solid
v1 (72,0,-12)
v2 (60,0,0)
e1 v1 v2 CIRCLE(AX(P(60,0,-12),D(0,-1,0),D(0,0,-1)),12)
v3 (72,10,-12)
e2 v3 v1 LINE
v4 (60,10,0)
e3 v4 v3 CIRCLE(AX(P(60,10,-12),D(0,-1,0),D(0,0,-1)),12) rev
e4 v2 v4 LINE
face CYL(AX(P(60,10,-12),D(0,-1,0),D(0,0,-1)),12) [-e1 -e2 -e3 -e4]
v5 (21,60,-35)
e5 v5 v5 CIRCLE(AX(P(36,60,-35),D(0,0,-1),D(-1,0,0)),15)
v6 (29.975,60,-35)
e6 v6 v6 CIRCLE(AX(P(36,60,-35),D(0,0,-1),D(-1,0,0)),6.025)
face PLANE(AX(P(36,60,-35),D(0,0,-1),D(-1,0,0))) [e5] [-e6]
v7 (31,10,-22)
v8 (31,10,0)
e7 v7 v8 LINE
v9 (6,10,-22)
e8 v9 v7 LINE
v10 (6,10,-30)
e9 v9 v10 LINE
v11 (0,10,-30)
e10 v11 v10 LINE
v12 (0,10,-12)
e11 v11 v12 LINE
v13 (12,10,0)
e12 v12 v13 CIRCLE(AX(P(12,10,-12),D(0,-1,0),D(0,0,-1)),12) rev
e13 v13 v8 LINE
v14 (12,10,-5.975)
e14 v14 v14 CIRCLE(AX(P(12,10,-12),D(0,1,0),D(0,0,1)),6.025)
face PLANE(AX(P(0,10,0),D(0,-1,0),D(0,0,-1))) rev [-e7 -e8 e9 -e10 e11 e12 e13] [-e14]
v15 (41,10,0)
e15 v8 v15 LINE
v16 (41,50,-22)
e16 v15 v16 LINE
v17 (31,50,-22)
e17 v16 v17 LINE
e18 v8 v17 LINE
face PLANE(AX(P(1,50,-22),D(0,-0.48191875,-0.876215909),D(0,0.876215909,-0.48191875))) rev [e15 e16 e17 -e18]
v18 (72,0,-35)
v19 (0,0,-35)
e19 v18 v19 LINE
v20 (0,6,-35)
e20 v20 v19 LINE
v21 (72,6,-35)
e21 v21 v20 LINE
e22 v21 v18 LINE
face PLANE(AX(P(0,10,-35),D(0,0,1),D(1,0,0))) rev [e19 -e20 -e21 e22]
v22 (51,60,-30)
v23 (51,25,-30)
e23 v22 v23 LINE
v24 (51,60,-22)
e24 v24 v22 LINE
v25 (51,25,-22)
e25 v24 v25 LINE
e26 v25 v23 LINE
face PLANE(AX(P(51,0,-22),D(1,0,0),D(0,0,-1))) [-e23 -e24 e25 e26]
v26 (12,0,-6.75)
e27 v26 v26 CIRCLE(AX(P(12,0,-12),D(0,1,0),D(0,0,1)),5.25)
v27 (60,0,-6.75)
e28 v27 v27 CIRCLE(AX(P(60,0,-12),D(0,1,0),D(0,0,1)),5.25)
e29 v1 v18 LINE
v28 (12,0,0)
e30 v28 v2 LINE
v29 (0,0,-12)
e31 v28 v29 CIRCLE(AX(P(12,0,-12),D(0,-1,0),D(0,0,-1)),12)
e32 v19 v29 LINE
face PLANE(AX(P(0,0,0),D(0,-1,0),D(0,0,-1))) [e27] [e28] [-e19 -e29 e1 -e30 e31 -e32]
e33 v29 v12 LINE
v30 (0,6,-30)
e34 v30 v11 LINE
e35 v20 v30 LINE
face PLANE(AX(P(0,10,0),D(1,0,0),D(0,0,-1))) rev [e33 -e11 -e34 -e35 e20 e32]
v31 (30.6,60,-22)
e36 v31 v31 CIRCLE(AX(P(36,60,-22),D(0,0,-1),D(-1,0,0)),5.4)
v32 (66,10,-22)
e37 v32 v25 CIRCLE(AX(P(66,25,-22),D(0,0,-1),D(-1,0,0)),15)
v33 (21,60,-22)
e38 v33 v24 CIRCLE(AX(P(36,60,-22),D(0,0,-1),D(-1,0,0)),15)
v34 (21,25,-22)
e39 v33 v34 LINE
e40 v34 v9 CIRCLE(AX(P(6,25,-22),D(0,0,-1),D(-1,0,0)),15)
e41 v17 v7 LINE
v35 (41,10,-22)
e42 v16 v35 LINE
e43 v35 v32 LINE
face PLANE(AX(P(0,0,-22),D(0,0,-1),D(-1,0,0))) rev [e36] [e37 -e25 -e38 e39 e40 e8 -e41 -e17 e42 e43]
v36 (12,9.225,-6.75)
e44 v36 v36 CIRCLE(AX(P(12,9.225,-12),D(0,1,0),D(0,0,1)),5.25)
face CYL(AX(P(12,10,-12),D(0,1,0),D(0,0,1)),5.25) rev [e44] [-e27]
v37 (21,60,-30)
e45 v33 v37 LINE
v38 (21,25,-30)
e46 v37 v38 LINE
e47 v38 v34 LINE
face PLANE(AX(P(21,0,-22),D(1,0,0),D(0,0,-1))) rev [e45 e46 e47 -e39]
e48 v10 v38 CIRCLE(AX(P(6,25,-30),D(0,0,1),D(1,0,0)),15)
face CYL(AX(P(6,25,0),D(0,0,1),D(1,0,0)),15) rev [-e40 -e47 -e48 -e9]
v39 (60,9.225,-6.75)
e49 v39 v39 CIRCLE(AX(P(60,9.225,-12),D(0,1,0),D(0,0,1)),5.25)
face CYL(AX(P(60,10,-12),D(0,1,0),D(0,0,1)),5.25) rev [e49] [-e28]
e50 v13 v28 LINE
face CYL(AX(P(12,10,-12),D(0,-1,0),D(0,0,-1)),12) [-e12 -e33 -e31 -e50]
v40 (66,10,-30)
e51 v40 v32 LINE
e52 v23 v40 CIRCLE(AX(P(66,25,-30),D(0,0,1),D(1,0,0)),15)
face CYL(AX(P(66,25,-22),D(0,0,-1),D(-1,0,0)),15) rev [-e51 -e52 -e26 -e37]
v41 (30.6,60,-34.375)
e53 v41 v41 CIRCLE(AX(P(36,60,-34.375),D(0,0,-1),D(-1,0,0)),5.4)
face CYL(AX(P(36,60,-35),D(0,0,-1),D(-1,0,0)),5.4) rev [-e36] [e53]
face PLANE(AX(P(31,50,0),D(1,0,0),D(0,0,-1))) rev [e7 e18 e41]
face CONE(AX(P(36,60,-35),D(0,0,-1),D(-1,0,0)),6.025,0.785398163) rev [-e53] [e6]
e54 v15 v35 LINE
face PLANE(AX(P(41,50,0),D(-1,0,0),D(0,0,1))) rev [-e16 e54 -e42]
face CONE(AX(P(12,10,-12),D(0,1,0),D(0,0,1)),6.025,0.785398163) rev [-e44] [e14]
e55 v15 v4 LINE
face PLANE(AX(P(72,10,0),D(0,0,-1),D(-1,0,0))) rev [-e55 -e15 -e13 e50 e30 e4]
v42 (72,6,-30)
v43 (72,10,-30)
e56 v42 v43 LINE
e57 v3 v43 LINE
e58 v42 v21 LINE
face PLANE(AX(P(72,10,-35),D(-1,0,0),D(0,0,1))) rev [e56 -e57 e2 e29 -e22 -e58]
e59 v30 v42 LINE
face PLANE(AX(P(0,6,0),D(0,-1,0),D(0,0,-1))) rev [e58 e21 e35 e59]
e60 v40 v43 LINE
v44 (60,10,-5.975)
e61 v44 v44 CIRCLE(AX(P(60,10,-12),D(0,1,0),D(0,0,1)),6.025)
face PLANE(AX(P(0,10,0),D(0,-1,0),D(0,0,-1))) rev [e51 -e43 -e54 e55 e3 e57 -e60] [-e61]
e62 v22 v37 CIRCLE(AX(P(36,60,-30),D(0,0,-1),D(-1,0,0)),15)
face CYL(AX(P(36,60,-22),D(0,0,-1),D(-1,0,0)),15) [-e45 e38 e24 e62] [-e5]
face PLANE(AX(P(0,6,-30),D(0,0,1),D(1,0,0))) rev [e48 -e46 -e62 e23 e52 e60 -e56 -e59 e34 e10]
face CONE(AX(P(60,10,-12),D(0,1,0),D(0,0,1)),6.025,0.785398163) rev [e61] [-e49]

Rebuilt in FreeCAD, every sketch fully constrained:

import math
import FreeCAD as App
import Part
import Sketcher
Q = App.Units.Quantity


def edges_at(feature, points):
    """Names of the edges that pass closest to the given points."""
    edges = feature.Shape.Edges
    near = lambda p: min(range(len(edges)), key=lambda i: edges[i].distToShape(Part.Vertex(*p))[0])
    return sorted({f"Edge{near(p) + 1}" for p in points})


def add_polygon(sketch, points):
    """Adds a closed chain of lines whose ends are joined by coincident constraints."""
    first, n = sketch.GeometryCount, len(points)
    for a, b in zip(points, points[1:] + points[:1]):
        sketch.addGeometry(Part.LineSegment(App.Vector(*a, 0), App.Vector(*b, 0)), False)
    for i in range(n):
        sketch.addConstraint(Sketcher.Constraint("Coincident", first + i, 2, first + (i + 1) % n, 1))

doc = App.newDocument("Part")
body = doc.addObject("PartDesign::Body", "Body")

sketch1 = body.newObject("Sketcher::SketchObject", "Sketch")
sketch1.AttachmentSupport = (doc.getObject("XZ_Plane"), [""])
sketch1.MapMode = "FlatFace"
add_polygon(sketch1, [(0, -35), (0, 0), (72, 0), (72, -35)])
sketch1.addConstraint([
    Sketcher.Constraint("Vertical", 0),
    Sketcher.Constraint("Horizontal", 1),
    Sketcher.Constraint("Vertical", 2),
    Sketcher.Constraint("Horizontal", 3),
    Sketcher.Constraint("Coincident", 0, 2, -1, 1),
    Sketcher.Constraint("DistanceX", 1, 1, 1, 2, Q("72 mm")),
    Sketcher.Constraint("DistanceY", 0, 1, 0, 2, Q("35 mm")),
])
pad1 = body.newObject("PartDesign::Pad", "Pad")
pad1.Profile = sketch1
pad1.Length = 10
pad1.Reversed = True

sketch2 = body.newObject("Sketcher::SketchObject", "Sketch001")
sketch2.AttachmentSupport = (doc.getObject("XZ_Plane"), [""])
sketch2.MapMode = "FlatFace"
sketch2.AttachmentOffset = App.Placement(App.Vector(0, 0, -10), App.Rotation())
add_polygon(sketch2, [(0, -35), (0, -30), (72, -30), (72, -35)])
sketch2.addConstraint([
    Sketcher.Constraint("Vertical", 0),
    Sketcher.Constraint("Horizontal", 1),
    Sketcher.Constraint("Vertical", 2),
    Sketcher.Constraint("Horizontal", 3),
    Sketcher.Constraint("PointOnObject", 0, 2, -2),
    Sketcher.Constraint("DistanceX", 1, 1, 1, 2, Q("72 mm")),
    Sketcher.Constraint("DistanceY", 0, 1, 0, 2, Q("5 mm")),
    Sketcher.Constraint("DistanceY", 0, 2, -1, 1, Q("30 mm")),
])
pocket1 = body.newObject("PartDesign::Pocket", "Pocket")
pocket1.Profile = sketch2
pocket1.Length = 4
pocket1.Reversed = True

sketch3 = body.newObject("Sketcher::SketchObject", "Sketch002")
sketch3.AttachmentSupport = (doc.getObject("XY_Plane"), [""])
sketch3.MapMode = "FlatFace"
sketch3.AttachmentOffset = App.Placement(App.Vector(0, 0, -30), App.Rotation())
sketch3.addGeometry([
    Part.LineSegment(App.Vector(51, 10, 0), App.Vector(21, 10, 0)),
    Part.LineSegment(App.Vector(21, 10, 0), App.Vector(21, 60, 0)),
    Part.ArcOfCircle(Part.Circle(App.Vector(36, 60, 0), App.Vector(0, 0, 1), 15), math.radians(0), math.radians(180)),
    Part.LineSegment(App.Vector(51, 60, 0), App.Vector(51, 10, 0)),
], False)
sketch3.addConstraint([
    Sketcher.Constraint("Coincident", 0, 2, 1, 1),
    Sketcher.Constraint("Tangent", 1, 2, 2, 2),
    Sketcher.Constraint("Tangent", 2, 1, 3, 1),
    Sketcher.Constraint("Coincident", 3, 2, 0, 1),
    Sketcher.Constraint("Horizontal", 0),
    Sketcher.Constraint("Vertical", 1),
    Sketcher.Constraint("Vertical", 3),
    Sketcher.Constraint("Radius", 2, Q("15 mm")),
    Sketcher.Constraint("DistanceY", 1, 1, 1, 2, Q("50 mm")),
    Sketcher.Constraint("DistanceX", -1, 1, 2, 3, Q("36 mm")),
    Sketcher.Constraint("DistanceY", -1, 1, 2, 3, Q("60 mm")),
])
pad2 = body.newObject("PartDesign::Pad", "Pad001")
pad2.Profile = sketch3
pad2.Length = 8

sketch4 = body.newObject("Sketcher::SketchObject", "Sketch003")
sketch4.AttachmentSupport = (doc.getObject("XY_Plane"), [""])
sketch4.MapMode = "FlatFace"
sketch4.AttachmentOffset = App.Placement(App.Vector(0, 0, -30), App.Rotation())
sketch4.addGeometry(Part.Circle(App.Vector(36, 60, 0), App.Vector(0, 0, 1), 15), False)
sketch4.addConstraint([
    Sketcher.Constraint("Diameter", 0, Q("30 mm")),
    Sketcher.Constraint("DistanceX", -1, 1, 0, 3, Q("36 mm")),
    Sketcher.Constraint("DistanceY", -1, 1, 0, 3, Q("60 mm")),
])
pad3 = body.newObject("PartDesign::Pad", "Pad002")
pad3.Profile = sketch4
pad3.Length = 5
pad3.Reversed = True

sketch5 = body.newObject("Sketcher::SketchObject", "Sketch004")
sketch5.AttachmentSupport = (doc.getObject("XY_Plane"), [""])
sketch5.MapMode = "FlatFace"
sketch5.AttachmentOffset = App.Placement(App.Vector(0, 0, -35), App.Rotation())
sketch5.addGeometry(Part.Circle(App.Vector(36, 60, 0), App.Vector(0, 0, 1), 5), False)
sketch5.addConstraint([
    Sketcher.Constraint("Diameter", 0, Q("10.8 mm")),
    Sketcher.Constraint("DistanceX", -1, 1, 0, 3, Q("36 mm")),
    Sketcher.Constraint("DistanceY", -1, 1, 0, 3, Q("60 mm")),
])
doc.recompute()
hole = body.newObject("PartDesign::Hole", "Hole")
hole.Profile = sketch5
hole.ThreadType = "None"
hole.Diameter = 10.8
hole.DepthType = "ThroughAll"
hole.HoleCutType = "Countersink"
hole.HoleCutDiameter = 12.05
hole.HoleCutCountersinkAngle = 90
hole.Reversed = True
doc.recompute()

fillet = body.newObject("PartDesign::Fillet", "Fillet")
fillet.Base = (hole, edges_at(hole, [(21, 10, -26), (51, 10, -26)]))
fillet.Radius = 15

sketch6 = body.newObject("Sketcher::SketchObject", "Sketch005")
sketch6.AttachmentSupport = (doc.getObject("XZ_Plane"), [""])
sketch6.MapMode = "FlatFace"
sketch6.AttachmentOffset = App.Placement(App.Vector(0, 0, -10), App.Rotation())
add_polygon(sketch6, [(31, -22), (31, 0), (41, 0), (41, -22)])
sketch6.addConstraint([
    Sketcher.Constraint("Vertical", 0),
    Sketcher.Constraint("Horizontal", 1),
    Sketcher.Constraint("Vertical", 2),
    Sketcher.Constraint("Horizontal", 3),
    Sketcher.Constraint("PointOnObject", 0, 2, -1),
    Sketcher.Constraint("DistanceX", 1, 1, 1, 2, Q("10 mm")),
    Sketcher.Constraint("DistanceY", 0, 1, 0, 2, Q("22 mm")),
    Sketcher.Constraint("DistanceX", -1, 1, 0, 2, Q("31 mm")),
])
pad4 = body.newObject("PartDesign::Pad", "Pad003")
pad4.Profile = sketch6
pad4.Length = 40
pad4.Reversed = True

sketch7 = body.newObject("Sketcher::SketchObject", "Sketch006")
sketch7.AttachmentSupport = (doc.getObject("YZ_Plane"), [""])
sketch7.MapMode = "FlatFace"
sketch7.AttachmentOffset = App.Placement(App.Vector(0, 0, 41), App.Rotation())
add_polygon(sketch7, [(10, 0), (50, -22), (50, 0)])
sketch7.addConstraint([
    Sketcher.Constraint("Vertical", 1),
    Sketcher.Constraint("Horizontal", 2),
    Sketcher.Constraint("PointOnObject", 1, 2, -1),
    Sketcher.Constraint("DistanceX", 2, 2, 2, 1, Q("40 mm")),
    Sketcher.Constraint("DistanceY", 1, 1, 1, 2, Q("22 mm")),
    Sketcher.Constraint("DistanceX", -1, 1, 0, 2, Q("50 mm")),
])
pocket2 = body.newObject("PartDesign::Pocket", "Pocket001")
pocket2.Profile = sketch7
pocket2.Length = 40
doc.recompute()

fillet2 = body.newObject("PartDesign::Fillet", "Fillet001")
fillet2.Base = (pocket2, edges_at(pocket2, [(0, 5, 0), (72, 5, 0)]))
fillet2.Radius = 12

sketch8 = body.newObject("Sketcher::SketchObject", "Sketch007")
sketch8.AttachmentSupport = (doc.getObject("XZ_Plane"), [""])
sketch8.MapMode = "FlatFace"
sketch8.AttachmentOffset = App.Placement(App.Vector(0, 0, -10), App.Rotation())
sketch8.addGeometry([
    Part.Circle(App.Vector(12, -12, 0), App.Vector(0, 0, 1), 5),
    Part.Circle(App.Vector(60, -12, 0), App.Vector(0, 0, 1), 5),
], False)
sketch8.addConstraint([
    Sketcher.Constraint("Equal", 0, 1),
    Sketcher.Constraint("Horizontal", 0, 3, 1, 3),
    Sketcher.Constraint("Diameter", 0, Q("10.5 mm")),
    Sketcher.Constraint("DistanceX", -1, 1, 0, 3, Q("12 mm")),
    Sketcher.Constraint("DistanceY", 0, 3, -1, 1, Q("12 mm")),
    Sketcher.Constraint("DistanceX", -1, 1, 1, 3, Q("60 mm")),
])
doc.recompute()
hole2 = body.newObject("PartDesign::Hole", "Hole001")
hole2.Profile = sketch8
hole2.ThreadType = "None"
hole2.Diameter = 10.5
hole2.DepthType = "ThroughAll"
hole2.HoleCutType = "Countersink"
hole2.HoleCutDiameter = 12.05
hole2.HoleCutCountersinkAngle = 90
hole2.Reversed = True

doc.recompute()
